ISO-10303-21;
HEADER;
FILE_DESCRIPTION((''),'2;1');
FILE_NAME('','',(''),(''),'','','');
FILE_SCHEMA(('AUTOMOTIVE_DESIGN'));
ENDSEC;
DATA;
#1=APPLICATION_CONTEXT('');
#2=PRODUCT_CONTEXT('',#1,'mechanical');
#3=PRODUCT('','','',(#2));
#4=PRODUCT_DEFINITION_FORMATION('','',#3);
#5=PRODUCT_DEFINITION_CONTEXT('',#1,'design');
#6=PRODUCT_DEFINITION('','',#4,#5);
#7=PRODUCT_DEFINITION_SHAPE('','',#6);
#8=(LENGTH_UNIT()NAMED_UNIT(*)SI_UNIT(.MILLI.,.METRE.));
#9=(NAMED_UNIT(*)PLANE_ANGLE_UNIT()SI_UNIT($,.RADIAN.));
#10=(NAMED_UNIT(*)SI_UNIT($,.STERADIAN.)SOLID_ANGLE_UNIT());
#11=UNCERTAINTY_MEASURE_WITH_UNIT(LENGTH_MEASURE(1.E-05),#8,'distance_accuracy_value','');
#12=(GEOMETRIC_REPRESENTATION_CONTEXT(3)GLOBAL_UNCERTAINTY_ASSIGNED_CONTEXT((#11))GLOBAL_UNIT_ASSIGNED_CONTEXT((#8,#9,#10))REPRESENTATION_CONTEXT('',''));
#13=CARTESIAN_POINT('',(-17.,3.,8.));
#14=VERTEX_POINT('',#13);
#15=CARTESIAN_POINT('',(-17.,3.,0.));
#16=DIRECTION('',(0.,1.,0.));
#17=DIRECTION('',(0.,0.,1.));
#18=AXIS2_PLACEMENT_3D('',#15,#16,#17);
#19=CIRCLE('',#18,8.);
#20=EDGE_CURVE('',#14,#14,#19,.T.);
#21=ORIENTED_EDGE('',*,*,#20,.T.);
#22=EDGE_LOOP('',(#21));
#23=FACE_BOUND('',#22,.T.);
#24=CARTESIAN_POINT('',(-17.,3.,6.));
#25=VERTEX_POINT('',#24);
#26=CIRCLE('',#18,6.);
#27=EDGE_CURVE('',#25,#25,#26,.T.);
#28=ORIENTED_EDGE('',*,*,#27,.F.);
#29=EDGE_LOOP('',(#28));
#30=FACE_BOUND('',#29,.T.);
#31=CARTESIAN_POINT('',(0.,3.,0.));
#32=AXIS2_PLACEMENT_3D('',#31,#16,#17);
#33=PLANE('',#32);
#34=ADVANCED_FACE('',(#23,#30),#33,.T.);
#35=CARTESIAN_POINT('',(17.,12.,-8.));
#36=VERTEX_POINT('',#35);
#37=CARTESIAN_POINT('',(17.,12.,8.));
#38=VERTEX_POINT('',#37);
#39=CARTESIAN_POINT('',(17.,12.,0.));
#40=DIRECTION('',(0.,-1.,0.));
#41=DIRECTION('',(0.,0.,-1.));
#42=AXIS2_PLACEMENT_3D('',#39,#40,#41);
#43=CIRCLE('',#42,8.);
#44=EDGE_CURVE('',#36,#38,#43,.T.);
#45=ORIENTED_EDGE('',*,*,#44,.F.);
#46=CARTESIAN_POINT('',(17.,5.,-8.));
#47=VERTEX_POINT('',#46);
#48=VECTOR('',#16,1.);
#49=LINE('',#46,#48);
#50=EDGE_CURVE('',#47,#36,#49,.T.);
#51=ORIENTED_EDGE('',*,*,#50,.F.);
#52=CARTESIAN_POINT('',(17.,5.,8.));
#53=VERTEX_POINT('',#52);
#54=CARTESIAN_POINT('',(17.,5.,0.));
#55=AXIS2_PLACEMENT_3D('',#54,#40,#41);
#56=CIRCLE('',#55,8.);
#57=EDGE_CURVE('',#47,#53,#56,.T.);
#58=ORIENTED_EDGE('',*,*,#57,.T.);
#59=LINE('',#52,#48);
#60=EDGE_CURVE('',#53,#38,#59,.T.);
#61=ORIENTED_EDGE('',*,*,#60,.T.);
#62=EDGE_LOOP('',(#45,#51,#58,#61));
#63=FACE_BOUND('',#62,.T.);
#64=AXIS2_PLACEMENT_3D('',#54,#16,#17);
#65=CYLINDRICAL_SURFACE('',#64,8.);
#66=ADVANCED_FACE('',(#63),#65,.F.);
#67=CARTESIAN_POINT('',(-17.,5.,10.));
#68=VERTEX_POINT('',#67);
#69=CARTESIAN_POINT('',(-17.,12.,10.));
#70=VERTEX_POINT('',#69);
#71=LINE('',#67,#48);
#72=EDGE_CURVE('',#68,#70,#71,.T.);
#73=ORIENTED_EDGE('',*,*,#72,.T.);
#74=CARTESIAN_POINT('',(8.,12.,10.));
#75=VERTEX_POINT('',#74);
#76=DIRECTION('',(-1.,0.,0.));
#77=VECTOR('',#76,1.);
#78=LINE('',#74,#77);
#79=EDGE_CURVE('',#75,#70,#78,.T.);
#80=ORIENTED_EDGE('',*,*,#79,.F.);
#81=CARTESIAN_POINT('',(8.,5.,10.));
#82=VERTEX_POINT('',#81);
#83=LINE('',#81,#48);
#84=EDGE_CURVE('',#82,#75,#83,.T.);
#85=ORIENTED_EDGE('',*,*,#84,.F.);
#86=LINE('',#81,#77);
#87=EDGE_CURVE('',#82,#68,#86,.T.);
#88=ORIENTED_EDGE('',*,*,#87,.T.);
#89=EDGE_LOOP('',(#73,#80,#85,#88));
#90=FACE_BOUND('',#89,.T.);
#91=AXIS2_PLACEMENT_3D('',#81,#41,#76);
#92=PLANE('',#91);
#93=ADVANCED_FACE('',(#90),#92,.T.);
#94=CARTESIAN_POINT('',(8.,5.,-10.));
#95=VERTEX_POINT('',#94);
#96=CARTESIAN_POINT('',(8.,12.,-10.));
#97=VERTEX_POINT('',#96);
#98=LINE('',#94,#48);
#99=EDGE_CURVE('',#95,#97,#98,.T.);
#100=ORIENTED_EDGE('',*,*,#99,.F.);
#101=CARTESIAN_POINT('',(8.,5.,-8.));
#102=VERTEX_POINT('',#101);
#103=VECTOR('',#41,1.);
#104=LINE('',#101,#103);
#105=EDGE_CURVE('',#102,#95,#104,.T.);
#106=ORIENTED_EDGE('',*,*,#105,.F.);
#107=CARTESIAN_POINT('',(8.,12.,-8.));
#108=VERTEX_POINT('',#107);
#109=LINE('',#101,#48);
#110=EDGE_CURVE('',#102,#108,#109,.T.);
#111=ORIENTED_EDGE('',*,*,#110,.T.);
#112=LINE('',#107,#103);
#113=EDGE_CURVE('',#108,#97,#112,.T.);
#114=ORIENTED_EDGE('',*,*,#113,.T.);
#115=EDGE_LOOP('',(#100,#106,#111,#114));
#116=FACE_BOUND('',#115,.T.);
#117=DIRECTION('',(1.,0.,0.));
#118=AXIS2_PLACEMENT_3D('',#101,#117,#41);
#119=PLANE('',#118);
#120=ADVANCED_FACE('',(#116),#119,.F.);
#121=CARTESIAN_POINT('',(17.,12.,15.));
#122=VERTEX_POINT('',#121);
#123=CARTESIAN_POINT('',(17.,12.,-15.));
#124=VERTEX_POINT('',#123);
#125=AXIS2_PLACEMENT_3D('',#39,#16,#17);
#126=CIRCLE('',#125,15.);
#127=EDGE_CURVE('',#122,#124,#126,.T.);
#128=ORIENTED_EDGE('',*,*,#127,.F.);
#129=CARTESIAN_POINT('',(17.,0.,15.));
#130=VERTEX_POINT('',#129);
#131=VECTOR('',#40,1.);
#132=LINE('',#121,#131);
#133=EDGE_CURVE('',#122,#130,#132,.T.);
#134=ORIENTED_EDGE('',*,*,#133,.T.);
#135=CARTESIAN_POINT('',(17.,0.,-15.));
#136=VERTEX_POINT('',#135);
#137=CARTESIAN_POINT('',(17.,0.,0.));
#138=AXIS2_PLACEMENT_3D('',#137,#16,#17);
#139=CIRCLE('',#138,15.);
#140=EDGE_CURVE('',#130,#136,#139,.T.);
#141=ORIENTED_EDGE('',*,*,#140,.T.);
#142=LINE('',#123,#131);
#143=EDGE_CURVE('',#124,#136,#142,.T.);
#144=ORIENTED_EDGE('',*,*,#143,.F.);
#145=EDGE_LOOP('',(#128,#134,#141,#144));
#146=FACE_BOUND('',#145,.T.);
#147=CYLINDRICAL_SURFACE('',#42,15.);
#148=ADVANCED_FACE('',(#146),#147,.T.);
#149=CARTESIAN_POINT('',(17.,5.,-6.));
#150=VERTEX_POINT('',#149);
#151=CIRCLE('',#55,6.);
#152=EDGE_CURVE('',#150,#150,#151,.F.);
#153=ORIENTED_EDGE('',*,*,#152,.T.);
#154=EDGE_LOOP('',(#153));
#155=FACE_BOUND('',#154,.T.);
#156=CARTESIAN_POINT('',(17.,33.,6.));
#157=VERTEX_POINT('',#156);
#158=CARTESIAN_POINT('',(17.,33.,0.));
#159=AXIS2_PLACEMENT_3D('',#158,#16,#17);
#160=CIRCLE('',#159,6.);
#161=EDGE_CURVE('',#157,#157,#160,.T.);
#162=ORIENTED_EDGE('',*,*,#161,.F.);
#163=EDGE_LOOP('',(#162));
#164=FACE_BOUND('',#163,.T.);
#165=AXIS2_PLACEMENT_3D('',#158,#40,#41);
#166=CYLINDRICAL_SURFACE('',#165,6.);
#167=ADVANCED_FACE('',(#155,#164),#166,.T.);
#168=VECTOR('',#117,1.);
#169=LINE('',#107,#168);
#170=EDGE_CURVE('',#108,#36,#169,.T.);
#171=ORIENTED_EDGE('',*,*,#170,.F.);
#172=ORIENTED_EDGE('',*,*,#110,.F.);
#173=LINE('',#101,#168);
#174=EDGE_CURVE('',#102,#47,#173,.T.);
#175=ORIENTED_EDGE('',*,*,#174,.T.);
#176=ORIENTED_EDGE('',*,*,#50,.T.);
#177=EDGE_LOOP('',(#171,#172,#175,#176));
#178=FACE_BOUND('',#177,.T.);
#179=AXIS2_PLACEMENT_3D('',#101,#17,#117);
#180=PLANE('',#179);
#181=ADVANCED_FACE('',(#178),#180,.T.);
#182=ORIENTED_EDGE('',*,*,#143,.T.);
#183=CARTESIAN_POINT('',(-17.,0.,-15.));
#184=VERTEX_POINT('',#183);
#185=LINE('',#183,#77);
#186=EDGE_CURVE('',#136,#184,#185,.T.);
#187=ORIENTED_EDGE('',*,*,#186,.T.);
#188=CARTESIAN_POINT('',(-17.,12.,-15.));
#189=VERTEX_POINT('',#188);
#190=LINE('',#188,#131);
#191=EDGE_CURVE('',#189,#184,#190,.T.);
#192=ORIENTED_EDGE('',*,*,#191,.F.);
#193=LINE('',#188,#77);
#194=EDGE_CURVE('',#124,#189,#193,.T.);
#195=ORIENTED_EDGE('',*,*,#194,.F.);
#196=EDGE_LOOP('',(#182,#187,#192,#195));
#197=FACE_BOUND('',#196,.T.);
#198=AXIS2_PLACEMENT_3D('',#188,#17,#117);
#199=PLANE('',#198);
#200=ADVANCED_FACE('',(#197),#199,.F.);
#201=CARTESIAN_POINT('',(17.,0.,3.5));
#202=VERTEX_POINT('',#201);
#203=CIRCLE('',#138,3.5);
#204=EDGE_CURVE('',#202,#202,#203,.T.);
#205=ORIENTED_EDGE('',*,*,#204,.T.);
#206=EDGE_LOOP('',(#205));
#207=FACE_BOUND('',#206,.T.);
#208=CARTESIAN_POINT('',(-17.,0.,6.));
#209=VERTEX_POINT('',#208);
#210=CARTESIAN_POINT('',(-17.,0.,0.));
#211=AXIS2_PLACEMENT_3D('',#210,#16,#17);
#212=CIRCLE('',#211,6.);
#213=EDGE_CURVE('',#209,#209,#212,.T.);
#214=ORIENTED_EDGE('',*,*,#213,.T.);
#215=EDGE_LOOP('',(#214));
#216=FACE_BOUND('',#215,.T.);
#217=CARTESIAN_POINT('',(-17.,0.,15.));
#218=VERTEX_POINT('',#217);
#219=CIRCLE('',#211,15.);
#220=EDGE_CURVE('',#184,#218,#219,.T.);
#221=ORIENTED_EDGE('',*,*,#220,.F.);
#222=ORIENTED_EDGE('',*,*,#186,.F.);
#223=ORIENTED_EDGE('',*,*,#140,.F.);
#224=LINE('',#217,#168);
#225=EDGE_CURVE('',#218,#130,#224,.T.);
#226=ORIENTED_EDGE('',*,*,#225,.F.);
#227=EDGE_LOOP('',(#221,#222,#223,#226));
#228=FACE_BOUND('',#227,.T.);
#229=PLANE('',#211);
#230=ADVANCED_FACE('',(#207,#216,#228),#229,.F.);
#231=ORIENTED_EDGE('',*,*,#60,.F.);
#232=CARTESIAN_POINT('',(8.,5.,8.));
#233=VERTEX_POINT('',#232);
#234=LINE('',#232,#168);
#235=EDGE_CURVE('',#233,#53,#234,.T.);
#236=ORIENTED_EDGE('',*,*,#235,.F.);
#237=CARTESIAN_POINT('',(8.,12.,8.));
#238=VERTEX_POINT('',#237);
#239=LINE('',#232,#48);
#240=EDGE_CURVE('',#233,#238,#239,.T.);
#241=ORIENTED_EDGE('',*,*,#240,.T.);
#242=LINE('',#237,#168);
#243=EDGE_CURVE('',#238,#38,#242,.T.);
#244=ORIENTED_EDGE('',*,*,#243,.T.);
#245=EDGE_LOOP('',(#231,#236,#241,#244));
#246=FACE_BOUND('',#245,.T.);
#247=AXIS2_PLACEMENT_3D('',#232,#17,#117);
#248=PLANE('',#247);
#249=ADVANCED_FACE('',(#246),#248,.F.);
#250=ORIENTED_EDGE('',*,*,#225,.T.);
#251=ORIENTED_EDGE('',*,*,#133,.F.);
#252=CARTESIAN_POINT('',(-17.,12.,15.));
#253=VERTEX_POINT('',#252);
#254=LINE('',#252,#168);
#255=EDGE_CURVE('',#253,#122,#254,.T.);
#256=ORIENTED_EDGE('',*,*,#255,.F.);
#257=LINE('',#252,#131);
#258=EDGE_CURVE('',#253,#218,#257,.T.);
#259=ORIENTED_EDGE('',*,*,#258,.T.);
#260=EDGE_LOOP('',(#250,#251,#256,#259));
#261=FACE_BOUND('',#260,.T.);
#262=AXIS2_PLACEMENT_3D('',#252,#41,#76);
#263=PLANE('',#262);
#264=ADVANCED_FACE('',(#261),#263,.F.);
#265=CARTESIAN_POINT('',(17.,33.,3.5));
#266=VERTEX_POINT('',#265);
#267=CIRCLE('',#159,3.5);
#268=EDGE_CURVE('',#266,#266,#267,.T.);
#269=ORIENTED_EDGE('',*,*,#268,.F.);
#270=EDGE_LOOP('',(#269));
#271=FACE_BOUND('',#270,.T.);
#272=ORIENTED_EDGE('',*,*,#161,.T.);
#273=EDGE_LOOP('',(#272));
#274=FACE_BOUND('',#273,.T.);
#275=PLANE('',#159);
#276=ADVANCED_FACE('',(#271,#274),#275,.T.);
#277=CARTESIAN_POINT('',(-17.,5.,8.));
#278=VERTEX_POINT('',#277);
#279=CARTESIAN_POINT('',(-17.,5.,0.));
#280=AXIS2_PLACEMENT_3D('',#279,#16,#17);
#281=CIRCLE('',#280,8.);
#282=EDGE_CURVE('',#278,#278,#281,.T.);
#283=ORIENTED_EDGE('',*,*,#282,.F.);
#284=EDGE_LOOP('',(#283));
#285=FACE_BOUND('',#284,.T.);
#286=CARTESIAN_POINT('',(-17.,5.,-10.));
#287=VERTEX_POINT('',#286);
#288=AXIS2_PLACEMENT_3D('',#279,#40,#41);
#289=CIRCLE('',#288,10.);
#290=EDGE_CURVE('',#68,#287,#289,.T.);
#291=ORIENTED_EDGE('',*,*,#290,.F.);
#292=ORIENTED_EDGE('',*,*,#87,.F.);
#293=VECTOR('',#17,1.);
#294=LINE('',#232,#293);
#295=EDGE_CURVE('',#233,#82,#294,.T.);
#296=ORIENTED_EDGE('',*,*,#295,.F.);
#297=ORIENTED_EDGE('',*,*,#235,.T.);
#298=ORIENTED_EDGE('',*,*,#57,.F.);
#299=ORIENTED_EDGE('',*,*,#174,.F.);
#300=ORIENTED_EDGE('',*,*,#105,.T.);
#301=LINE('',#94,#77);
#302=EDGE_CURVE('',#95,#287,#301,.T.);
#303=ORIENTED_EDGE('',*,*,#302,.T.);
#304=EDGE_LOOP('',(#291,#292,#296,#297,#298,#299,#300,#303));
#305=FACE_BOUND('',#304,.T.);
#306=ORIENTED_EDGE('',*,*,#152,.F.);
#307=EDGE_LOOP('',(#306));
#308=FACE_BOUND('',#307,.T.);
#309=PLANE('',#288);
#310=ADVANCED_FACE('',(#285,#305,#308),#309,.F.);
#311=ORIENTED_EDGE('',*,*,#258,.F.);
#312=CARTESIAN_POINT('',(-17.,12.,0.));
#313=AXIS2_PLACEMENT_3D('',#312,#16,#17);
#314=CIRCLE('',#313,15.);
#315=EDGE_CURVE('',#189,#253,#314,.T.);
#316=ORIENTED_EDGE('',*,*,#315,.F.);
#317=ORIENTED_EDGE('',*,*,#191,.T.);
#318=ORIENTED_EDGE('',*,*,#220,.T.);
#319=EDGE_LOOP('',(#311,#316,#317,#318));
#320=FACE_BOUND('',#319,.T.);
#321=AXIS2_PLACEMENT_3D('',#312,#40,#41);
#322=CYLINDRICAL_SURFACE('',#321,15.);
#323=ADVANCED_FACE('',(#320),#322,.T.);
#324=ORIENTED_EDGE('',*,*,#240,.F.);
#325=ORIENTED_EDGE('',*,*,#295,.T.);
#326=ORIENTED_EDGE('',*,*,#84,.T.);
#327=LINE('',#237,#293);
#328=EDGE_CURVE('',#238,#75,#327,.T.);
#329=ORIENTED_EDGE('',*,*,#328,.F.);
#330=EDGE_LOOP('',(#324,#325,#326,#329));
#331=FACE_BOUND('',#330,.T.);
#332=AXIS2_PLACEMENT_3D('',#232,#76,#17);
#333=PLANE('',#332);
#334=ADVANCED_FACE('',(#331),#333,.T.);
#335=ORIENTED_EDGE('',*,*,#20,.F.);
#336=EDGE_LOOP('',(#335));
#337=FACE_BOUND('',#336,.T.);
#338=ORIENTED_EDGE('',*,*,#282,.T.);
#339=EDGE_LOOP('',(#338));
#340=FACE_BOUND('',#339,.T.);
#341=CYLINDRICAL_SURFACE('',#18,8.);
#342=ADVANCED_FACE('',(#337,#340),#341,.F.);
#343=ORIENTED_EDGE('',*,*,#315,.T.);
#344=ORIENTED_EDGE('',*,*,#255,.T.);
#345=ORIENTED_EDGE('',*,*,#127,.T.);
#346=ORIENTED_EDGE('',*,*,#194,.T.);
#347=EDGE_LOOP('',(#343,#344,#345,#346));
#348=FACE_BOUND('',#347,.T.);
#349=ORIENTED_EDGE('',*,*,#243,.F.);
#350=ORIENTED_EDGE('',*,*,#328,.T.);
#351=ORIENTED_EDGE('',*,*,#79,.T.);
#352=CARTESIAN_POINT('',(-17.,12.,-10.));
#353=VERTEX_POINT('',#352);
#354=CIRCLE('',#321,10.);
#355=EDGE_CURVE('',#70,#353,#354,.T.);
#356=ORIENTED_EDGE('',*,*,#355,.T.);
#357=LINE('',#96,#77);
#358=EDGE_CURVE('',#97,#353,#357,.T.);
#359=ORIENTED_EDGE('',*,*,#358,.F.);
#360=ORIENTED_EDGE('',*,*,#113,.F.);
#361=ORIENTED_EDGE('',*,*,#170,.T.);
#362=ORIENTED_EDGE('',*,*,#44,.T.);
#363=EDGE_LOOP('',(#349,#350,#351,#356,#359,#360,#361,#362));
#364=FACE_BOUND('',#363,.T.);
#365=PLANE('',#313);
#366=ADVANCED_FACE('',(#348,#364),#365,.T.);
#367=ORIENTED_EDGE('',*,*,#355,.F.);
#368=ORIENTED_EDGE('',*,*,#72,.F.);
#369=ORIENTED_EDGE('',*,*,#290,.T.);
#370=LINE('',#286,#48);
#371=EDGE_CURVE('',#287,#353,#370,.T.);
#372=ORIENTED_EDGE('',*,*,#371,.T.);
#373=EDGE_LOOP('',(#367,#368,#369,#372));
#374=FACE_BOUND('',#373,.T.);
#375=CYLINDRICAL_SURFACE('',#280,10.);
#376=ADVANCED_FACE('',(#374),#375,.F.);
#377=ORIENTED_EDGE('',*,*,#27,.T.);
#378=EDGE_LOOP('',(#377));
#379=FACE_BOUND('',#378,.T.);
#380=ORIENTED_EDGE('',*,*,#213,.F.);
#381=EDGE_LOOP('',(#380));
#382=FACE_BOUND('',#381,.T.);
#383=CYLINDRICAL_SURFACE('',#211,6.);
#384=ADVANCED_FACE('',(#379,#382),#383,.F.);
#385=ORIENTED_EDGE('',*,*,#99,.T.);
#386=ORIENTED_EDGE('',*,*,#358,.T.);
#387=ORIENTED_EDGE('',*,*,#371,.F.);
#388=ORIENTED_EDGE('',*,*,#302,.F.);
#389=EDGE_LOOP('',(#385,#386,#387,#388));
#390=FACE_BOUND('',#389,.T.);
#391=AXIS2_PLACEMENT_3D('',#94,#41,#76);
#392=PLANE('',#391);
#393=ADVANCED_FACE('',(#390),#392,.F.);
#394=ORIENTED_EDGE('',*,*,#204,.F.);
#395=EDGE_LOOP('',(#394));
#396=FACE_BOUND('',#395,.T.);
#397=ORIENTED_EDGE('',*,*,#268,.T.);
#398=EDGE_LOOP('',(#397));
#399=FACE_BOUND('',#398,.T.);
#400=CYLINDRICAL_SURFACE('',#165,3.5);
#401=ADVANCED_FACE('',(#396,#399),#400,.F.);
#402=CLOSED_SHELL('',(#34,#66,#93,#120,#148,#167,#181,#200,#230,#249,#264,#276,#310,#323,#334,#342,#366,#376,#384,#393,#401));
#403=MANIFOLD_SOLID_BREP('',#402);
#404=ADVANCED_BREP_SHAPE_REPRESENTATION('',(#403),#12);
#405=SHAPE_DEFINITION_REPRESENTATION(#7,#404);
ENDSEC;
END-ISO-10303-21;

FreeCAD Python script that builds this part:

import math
import FreeCAD as App
import Part
import Sketcher

V = App.Vector
Q = App.Units.Quantity

doc = App.newDocument("Part")
params = doc.addObject("Spreadsheet::Sheet", "Params")
for row, (alias, value) in enumerate([
    ("sketch1_radius", "15 mm"),
    ("sketch1_width", "34 mm"),
    ("pad1_length", "12 mm"),
    ("sketch2_radius", "10 mm"),
    ("sketch2_radius2", "8 mm"),
    ("sketch2_width", "25 mm"),
    ("sketch2_width2", "9 mm"),
    ("pocket1_length", "7 mm"),
    ("sketch3_diameter", "12 mm"),
    ("sketch3_diameter2", "7 mm"),
    ("pad2_length", "28 mm"),
    ("sketch4_diameter", "7 mm"),
    ("pocket2_length", "28 mm"),
    ("sketch5_diameter", "16 mm"),
    ("sketch5_diameter2", "12 mm"),
    ("pocket3_length", "2 mm"),
    ("sketch6_diameter", "12 mm"),
], start=1):
    params.set(f"A{row}", alias)
    params.set(f"B{row}", "=" + value)
    params.setAlias(f"B{row}", alias)

body = doc.addObject("PartDesign::Body", "Body")

sketch1 = body.newObject("Sketcher::SketchObject", "Sketch")
sketch1.AttachmentSupport = (doc.getObject("XZ_Plane"), [""])
sketch1.MapMode = "FlatFace"
sketch1.addGeometry(Part.LineSegment(V(17, -15, 0), V(-17, -15, 0)), False)
sketch1.addGeometry(Part.ArcOfCircle(Part.Circle(V(-17, 0, 0), V(0, 0, 1), 15), math.radians(90), math.radians(270)), False)
sketch1.addGeometry(Part.LineSegment(V(-17, 15, 0), V(17, 15, 0)), False)
sketch1.addGeometry(Part.ArcOfCircle(Part.Circle(V(17, 0, 0), V(0, 0, 1), 15), math.radians(-90), math.radians(90)), False)
sketch1.addConstraint(Sketcher.Constraint("Tangent", 0, 2, 1, 2))
sketch1.addConstraint(Sketcher.Constraint("Tangent", 1, 1, 2, 1))
sketch1.addConstraint(Sketcher.Constraint("Tangent", 2, 2, 3, 2))
sketch1.addConstraint(Sketcher.Constraint("Tangent", 3, 1, 0, 1))
sketch1.addConstraint(Sketcher.Constraint("Horizontal", 0))
sketch1.addConstraint(Sketcher.Constraint("Horizontal", 2))
sketch1.addConstraint(Sketcher.Constraint("Symmetric", 1, 3, 3, 3, -1, 1))
sketch1.addConstraint(Sketcher.Constraint("Radius", 1, Q("15 mm")))
sketch1.addConstraint(Sketcher.Constraint("DistanceX", 0, 2, 0, 1, Q("34 mm")))
sketch1.setExpression("Constraints[7]", "Params.sketch1_radius")
sketch1.setExpression("Constraints[8]", "Params.sketch1_width")
pad1 = body.newObject("PartDesign::Pad", "Pad")
pad1.Profile = sketch1
pad1.setExpression("Length", "Params.pad1_length")
pad1.Reversed = True

sketch2 = body.newObject("Sketcher::SketchObject", "Sketch001")
sketch2.AttachmentSupport = (doc.getObject("XZ_Plane"), [""])
sketch2.MapMode = "FlatFace"
sketch2.AttachmentOffset = App.Placement(V(0, 0, -12), App.Rotation())
sketch2.addGeometry(Part.LineSegment(V(8, -10, 0), V(-17, -10, 0)), False)
sketch2.addGeometry(Part.ArcOfCircle(Part.Circle(V(-17, 0, 0), V(0, 0, 1), 10), math.radians(90), math.radians(270)), False)
sketch2.addGeometry(Part.LineSegment(V(-17, 10, 0), V(8, 10, 0)), False)
sketch2.addGeometry(Part.LineSegment(V(8, 10, 0), V(8, 8, 0)), False)
sketch2.addGeometry(Part.LineSegment(V(8, 8, 0), V(17, 8, 0)), False)
sketch2.addGeometry(Part.ArcOfCircle(Part.Circle(V(17, 0, 0), V(0, 0, 1), 8), math.radians(-90), math.radians(90)), False)
sketch2.addGeometry(Part.LineSegment(V(17, -8, 0), V(8, -8, 0)), False)
sketch2.addGeometry(Part.LineSegment(V(8, -8, 0), V(8, -10, 0)), False)
sketch2.addConstraint(Sketcher.Constraint("Tangent", 0, 2, 1, 2))
sketch2.addConstraint(Sketcher.Constraint("Tangent", 1, 1, 2, 1))
sketch2.addConstraint(Sketcher.Constraint("Coincident", 2, 2, 3, 1))
sketch2.addConstraint(Sketcher.Constraint("Coincident", 3, 2, 4, 1))
sketch2.addConstraint(Sketcher.Constraint("Tangent", 4, 2, 5, 2))
sketch2.addConstraint(Sketcher.Constraint("Tangent", 5, 1, 6, 1))
sketch2.addConstraint(Sketcher.Constraint("Coincident", 6, 2, 7, 1))
sketch2.addConstraint(Sketcher.Constraint("Coincident", 7, 2, 0, 1))
sketch2.addConstraint(Sketcher.Constraint("Horizontal", 0))
sketch2.addConstraint(Sketcher.Constraint("Horizontal", 2))
sketch2.addConstraint(Sketcher.Constraint("Vertical", 3))
sketch2.addConstraint(Sketcher.Constraint("Horizontal", 4))
sketch2.addConstraint(Sketcher.Constraint("Horizontal", 6))
sketch2.addConstraint(Sketcher.Constraint("Vertical", 7))
sketch2.addConstraint(Sketcher.Constraint("Symmetric", 1, 3, 5, 3, -1, 1))
sketch2.addConstraint(Sketcher.Constraint("Symmetric", 3, 2, 6, 2, -1))
sketch2.addConstraint(Sketcher.Constraint("Radius", 1, Q("10 mm")))
sketch2.addConstraint(Sketcher.Constraint("Radius", 5, Q("8 mm")))
sketch2.addConstraint(Sketcher.Constraint("DistanceX", 0, 2, 0, 1, Q("25 mm")))
sketch2.addConstraint(Sketcher.Constraint("DistanceX", 4, 1, 4, 2, Q("9 mm")))
sketch2.setExpression("Constraints[16]", "Params.sketch2_radius")
sketch2.setExpression("Constraints[17]", "Params.sketch2_radius2")
sketch2.setExpression("Constraints[18]", "Params.sketch2_width")
sketch2.setExpression("Constraints[19]", "Params.sketch2_width2")
pocket1 = body.newObject("PartDesign::Pocket", "Pocket")
pocket1.Profile = sketch2
pocket1.setExpression("Length", "Params.pocket1_length")
pocket1.Reversed = True

sketch3 = body.newObject("Sketcher::SketchObject", "Sketch002")
sketch3.AttachmentSupport = (doc.getObject("XZ_Plane"), [""])
sketch3.MapMode = "FlatFace"
sketch3.AttachmentOffset = App.Placement(V(0, 0, -5), App.Rotation())
sketch3.addGeometry(Part.Circle(V(17, 0, 0), V(0, 0, 1), 6), False)
sketch3.addGeometry(Part.Circle(V(17, 0, 0), V(0, 0, 1), 3.5), False)
sketch3.addConstraint(Sketcher.Constraint("Coincident", 1, 3, 0, 3))
sketch3.addConstraint(Sketcher.Constraint("PointOnObject", 0, 3, -1))
sketch3.addConstraint(Sketcher.Constraint("Diameter", 0, Q("12 mm")))
sketch3.addConstraint(Sketcher.Constraint("Diameter", 1, Q("7 mm")))
sketch3.addConstraint(Sketcher.Constraint("DistanceX", -1, 1, 0, 3, Q("17 mm")))
sketch3.setExpression("Constraints[2]", "Params.sketch3_diameter")
sketch3.setExpression("Constraints[3]", "Params.sketch3_diameter2")
pad2 = body.newObject("PartDesign::Pad", "Pad001")
pad2.Profile = sketch3
pad2.setExpression("Length", "Params.pad2_length")
pad2.Reversed = True

sketch4 = body.newObject("Sketcher::SketchObject", "Sketch003")
sketch4.AttachmentSupport = (doc.getObject("XZ_Plane"), [""])
sketch4.MapMode = "FlatFace"
sketch4.AttachmentOffset = App.Placement(V(0, 0, -5), App.Rotation())
sketch4.addGeometry(Part.Circle(V(17, 0, 0), V(0, 0, 1), 3.5), False)
sketch4.addConstraint(Sketcher.Constraint("PointOnObject", 0, 3, -1))
sketch4.addConstraint(Sketcher.Constraint("Diameter", 0, Q("7 mm")))
sketch4.addConstraint(Sketcher.Constraint("DistanceX", -1, 1, 0, 3, Q("17 mm")))
sketch4.setExpression("Constraints[1]", "Params.sketch4_diameter")
pocket2 = body.newObject("PartDesign::Pocket", "Pocket001")
pocket2.Profile = sketch4
pocket2.setExpression("Length", "Params.pocket2_length")
pocket2.Reversed = True

sketch5 = body.newObject("Sketcher::SketchObject", "Sketch004")
sketch5.AttachmentSupport = (doc.getObject("XZ_Plane"), [""])
sketch5.MapMode = "FlatFace"
sketch5.AttachmentOffset = App.Placement(V(0, 0, -5), App.Rotation())
sketch5.addGeometry(Part.Circle(V(-17, 0, 0), V(0, 0, 1), 8), False)
sketch5.addGeometry(Part.Circle(V(-17, 0, 0), V(0, 0, 1), 6), False)
sketch5.addConstraint(Sketcher.Constraint("Coincident", 1, 3, 0, 3))
sketch5.addConstraint(Sketcher.Constraint("PointOnObject", 0, 3, -1))
sketch5.addConstraint(Sketcher.Constraint("Diameter", 0, Q("16 mm")))
sketch5.addConstraint(Sketcher.Constraint("Diameter", 1, Q("12 mm")))
sketch5.addConstraint(Sketcher.Constraint("DistanceX", 0, 3, -1, 1, Q("17 mm")))
sketch5.setExpression("Constraints[2]", "Params.sketch5_diameter")
sketch5.setExpression("Constraints[3]", "Params.sketch5_diameter2")
pocket3 = body.newObject("PartDesign::Pocket", "Pocket002")
pocket3.Profile = sketch5
pocket3.setExpression("Length", "Params.pocket3_length")
pocket3.Reversed = True

sketch6 = body.newObject("Sketcher::SketchObject", "Sketch005")
sketch6.AttachmentSupport = (doc.getObject("XZ_Plane"), [""])
sketch6.MapMode = "FlatFace"
sketch6.AttachmentOffset = App.Placement(V(0, 0, -5), App.Rotation())
sketch6.addGeometry(Part.Circle(V(-17, 0, 0), V(0, 0, 1), 6), False)
sketch6.addConstraint(Sketcher.Constraint("PointOnObject", 0, 3, -1))
sketch6.addConstraint(Sketcher.Constraint("Diameter", 0, Q("12 mm")))
sketch6.addConstraint(Sketcher.Constraint("DistanceX", 0, 3, -1, 1, Q("17 mm")))
sketch6.setExpression("Constraints[1]", "Params.sketch6_diameter")
pocket4 = body.newObject("PartDesign::Pocket", "Pocket003")
pocket4.Profile = sketch6
pocket4.Type = "ThroughAll"
pocket4.Reversed = True

doc.recompute()
